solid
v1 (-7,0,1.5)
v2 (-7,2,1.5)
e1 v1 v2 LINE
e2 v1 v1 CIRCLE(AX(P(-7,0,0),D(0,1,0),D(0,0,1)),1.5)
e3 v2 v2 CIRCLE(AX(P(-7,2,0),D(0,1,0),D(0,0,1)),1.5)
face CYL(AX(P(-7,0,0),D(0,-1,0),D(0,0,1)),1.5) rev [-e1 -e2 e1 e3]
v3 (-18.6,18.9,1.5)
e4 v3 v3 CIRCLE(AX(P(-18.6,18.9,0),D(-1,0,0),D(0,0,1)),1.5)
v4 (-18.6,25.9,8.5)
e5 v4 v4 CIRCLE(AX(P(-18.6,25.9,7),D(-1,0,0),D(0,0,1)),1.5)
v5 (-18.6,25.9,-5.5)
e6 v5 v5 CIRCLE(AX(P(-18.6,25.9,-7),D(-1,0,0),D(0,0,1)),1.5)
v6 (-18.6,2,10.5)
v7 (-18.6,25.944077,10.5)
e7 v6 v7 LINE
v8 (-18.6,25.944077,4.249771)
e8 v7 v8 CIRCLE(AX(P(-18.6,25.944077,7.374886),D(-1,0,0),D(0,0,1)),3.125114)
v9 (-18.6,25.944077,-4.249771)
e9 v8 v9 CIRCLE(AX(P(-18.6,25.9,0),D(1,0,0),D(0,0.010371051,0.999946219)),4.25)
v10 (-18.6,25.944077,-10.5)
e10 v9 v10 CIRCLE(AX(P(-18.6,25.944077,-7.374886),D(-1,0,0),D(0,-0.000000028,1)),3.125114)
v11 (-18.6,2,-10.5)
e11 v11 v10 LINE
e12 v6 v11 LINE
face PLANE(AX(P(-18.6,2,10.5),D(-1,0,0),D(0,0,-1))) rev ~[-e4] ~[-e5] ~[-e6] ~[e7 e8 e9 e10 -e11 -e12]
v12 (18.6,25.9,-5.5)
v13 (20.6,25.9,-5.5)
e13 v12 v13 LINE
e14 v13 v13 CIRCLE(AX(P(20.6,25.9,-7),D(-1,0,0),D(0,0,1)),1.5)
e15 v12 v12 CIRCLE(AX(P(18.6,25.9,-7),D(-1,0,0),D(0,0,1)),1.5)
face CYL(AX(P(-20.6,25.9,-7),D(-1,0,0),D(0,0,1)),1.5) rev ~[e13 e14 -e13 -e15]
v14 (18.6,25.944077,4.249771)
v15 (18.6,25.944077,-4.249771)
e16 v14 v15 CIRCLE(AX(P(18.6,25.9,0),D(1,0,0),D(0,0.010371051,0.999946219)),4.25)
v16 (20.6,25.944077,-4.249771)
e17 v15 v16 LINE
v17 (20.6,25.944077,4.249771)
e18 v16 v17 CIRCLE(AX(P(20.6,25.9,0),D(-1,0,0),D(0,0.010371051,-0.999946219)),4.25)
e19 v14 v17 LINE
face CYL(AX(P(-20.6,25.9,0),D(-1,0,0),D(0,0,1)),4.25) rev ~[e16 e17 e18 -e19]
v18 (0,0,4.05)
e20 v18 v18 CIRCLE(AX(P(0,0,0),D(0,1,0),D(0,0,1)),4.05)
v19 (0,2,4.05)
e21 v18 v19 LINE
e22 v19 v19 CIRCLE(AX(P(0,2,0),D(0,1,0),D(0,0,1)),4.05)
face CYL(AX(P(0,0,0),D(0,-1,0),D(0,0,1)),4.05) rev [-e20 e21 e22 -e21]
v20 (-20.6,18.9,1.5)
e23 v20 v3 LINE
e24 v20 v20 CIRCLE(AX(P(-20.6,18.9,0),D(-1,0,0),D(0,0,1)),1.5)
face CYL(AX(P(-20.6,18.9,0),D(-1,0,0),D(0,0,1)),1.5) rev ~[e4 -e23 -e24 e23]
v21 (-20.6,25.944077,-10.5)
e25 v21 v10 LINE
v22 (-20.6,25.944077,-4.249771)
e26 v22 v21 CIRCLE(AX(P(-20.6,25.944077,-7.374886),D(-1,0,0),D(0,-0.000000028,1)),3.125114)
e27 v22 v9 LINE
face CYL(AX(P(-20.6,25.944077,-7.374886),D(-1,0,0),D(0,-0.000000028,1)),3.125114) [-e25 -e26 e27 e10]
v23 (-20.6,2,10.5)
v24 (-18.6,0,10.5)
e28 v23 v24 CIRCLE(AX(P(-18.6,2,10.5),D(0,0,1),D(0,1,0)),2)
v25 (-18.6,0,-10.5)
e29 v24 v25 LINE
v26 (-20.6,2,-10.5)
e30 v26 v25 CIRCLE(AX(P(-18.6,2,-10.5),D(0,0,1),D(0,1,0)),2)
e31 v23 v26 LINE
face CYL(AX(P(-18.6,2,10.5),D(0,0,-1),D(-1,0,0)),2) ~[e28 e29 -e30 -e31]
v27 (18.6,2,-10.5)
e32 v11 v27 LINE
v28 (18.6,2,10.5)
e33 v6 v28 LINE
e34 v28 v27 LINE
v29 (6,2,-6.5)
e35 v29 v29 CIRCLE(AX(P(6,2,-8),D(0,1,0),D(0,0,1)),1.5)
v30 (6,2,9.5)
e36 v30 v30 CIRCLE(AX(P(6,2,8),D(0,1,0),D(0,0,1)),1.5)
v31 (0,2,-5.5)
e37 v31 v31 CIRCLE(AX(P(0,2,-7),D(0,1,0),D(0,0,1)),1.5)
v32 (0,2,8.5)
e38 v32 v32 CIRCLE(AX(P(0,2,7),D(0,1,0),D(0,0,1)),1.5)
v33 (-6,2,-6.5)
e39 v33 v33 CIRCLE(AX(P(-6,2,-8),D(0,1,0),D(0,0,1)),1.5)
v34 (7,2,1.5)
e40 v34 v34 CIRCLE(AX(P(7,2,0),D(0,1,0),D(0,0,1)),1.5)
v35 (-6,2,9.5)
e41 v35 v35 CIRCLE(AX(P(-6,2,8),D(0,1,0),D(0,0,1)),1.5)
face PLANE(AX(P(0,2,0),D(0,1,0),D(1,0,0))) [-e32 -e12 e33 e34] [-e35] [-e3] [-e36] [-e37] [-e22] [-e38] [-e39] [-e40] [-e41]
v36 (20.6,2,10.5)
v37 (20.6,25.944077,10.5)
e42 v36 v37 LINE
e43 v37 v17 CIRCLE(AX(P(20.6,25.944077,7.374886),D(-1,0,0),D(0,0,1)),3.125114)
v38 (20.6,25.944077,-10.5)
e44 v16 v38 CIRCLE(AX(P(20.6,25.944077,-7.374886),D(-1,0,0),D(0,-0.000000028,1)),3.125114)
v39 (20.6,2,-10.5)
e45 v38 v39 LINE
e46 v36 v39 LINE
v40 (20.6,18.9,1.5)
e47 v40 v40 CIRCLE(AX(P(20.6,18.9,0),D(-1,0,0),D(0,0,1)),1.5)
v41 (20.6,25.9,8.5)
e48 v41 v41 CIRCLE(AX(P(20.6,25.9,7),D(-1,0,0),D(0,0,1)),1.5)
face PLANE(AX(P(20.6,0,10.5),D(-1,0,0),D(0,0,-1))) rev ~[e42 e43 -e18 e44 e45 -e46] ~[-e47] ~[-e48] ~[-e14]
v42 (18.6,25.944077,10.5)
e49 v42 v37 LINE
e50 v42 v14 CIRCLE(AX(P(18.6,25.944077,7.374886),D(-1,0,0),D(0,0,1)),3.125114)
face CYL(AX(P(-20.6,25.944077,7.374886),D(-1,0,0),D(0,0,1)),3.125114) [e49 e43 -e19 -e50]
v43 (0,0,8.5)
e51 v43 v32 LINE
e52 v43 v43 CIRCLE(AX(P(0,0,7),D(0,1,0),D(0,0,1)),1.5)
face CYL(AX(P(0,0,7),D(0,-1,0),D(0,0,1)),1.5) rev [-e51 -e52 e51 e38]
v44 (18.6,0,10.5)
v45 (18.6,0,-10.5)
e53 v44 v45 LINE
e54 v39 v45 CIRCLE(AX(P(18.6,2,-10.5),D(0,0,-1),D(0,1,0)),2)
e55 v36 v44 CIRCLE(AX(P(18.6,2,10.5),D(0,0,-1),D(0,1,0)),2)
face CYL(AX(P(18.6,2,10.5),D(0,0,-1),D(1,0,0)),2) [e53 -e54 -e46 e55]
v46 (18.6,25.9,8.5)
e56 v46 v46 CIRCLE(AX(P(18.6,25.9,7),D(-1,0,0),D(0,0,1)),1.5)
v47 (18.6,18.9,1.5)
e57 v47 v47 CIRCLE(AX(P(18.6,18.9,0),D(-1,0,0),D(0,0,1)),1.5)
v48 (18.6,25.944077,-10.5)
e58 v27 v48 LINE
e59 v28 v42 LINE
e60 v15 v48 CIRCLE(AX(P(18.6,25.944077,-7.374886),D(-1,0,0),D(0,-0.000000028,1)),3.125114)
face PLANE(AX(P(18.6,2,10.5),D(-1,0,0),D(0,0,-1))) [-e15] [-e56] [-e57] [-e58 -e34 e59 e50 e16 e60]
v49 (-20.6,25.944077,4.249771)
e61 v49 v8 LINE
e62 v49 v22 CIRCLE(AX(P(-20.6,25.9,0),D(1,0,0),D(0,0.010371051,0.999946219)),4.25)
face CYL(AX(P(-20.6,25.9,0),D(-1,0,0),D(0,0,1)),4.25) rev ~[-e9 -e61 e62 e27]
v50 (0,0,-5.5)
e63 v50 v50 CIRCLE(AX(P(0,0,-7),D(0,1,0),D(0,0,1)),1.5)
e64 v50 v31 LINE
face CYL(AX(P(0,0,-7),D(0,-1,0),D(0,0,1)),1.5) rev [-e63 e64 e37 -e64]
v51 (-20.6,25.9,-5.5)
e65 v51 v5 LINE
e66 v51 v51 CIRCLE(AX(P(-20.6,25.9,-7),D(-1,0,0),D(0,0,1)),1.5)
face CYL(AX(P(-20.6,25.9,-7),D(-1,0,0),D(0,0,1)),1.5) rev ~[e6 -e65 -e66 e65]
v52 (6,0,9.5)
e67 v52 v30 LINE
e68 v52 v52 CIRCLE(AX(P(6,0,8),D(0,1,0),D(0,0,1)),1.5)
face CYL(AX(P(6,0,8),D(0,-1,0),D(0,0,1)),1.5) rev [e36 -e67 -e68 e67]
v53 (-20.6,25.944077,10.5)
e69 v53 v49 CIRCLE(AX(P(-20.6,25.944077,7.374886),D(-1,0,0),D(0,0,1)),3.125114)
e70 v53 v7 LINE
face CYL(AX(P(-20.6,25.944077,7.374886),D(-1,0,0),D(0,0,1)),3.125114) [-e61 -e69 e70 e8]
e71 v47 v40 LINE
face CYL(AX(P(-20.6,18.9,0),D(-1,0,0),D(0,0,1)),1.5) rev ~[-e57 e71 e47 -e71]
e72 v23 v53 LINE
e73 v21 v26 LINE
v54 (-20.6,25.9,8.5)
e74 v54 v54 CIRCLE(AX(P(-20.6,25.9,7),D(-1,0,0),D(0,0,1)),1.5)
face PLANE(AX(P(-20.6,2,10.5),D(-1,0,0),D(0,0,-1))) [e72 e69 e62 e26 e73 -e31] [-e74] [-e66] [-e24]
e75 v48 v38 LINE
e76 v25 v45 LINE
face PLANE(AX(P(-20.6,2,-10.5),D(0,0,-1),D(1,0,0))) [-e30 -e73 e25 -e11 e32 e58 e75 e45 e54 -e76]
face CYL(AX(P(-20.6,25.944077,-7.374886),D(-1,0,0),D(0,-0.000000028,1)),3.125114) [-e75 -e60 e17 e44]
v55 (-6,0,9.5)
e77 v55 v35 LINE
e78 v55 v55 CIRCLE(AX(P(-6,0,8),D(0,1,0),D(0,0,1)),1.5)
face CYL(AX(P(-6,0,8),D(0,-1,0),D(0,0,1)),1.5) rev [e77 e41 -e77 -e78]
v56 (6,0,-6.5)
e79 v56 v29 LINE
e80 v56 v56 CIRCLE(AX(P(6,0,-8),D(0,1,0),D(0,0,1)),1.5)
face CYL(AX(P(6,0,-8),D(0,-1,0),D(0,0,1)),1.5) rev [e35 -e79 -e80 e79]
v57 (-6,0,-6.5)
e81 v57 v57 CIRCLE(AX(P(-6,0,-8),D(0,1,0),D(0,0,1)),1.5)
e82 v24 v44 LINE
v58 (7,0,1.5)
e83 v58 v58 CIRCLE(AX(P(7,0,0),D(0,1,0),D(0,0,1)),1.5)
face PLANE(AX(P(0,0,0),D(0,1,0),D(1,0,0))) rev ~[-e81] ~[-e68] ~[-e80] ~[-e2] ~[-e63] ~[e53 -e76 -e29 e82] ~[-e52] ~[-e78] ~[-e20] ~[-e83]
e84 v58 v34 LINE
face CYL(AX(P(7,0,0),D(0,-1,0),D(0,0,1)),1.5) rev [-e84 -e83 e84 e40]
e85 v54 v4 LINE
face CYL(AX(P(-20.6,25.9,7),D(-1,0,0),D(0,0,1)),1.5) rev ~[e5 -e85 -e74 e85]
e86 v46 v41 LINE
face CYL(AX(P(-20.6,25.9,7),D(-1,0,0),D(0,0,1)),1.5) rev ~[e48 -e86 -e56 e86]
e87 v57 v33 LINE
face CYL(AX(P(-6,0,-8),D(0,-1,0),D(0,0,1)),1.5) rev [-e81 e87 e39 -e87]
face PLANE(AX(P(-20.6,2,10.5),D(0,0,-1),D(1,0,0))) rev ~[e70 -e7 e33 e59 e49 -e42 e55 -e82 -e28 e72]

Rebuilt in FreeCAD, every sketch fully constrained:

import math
import FreeCAD as App
import Part
import Sketcher
from FreeCAD import Vector


def edges_at(feature, points):
    """Names of the edges that pass closest to the given points."""
    edges = feature.Shape.Edges
    near = lambda p: min(range(len(edges)), key=lambda i: edges[i].distToShape(Part.Vertex(*p))[0])
    return sorted({f"Edge{near(p) + 1}" for p in points})


def add_polygon(sketch, points):
    """Adds a closed chain of lines whose ends are joined by coincident constraints."""
    first, n = sketch.GeometryCount, len(points)
    for a, b in zip(points, points[1:] + points[:1]):
        sketch.addGeometry(Part.LineSegment(App.Vector(*a, 0), App.Vector(*b, 0)), False)
    for i in range(n):
        sketch.addConstraint(Sketcher.Constraint("Coincident", first + i, 2, first + (i + 1) % n, 1))

doc = App.newDocument("Part")
body = doc.addObject("PartDesign::Body", "Body")

sketch1 = body.newObject("Sketcher::SketchObject", "Sketch")
sketch1.AttachmentSupport = (doc.getObject("XZ_Plane"), [""])
sketch1.MapMode = "FlatFace"
add_polygon(sketch1, [(-20.6, -10.5), (-20.6, 10.5), (20.6, 10.5), (20.6, -10.5)])
sketch1.addGeometry(Part.Circle(Vector(-6, 8, 0), Vector(0, 0, 1), 1.5), False)
sketch1.addGeometry(Part.Circle(Vector(0, 7, 0), Vector(0, 0, 1), 1.5), False)
sketch1.addGeometry(Part.Circle(Vector(6, 8, 0), Vector(0, 0, 1), 1.5), False)
sketch1.addGeometry(Part.Circle(Vector(-7, 0, 0), Vector(0, 0, 1), 1.5), False)
sketch1.addGeometry(Part.Circle(Vector(-6, -8, 0), Vector(0, 0, 1), 1.5), False)
sketch1.addGeometry(Part.Circle(Vector(0, 0, 0), Vector(0, 0, 1), 4.05), False)
sketch1.addGeometry(Part.Circle(Vector(7, 0, 0), Vector(0, 0, 1), 1.5), False)
sketch1.addGeometry(Part.Circle(Vector(0, -7, 0), Vector(0, 0, 1), 1.5), False)
sketch1.addGeometry(Part.Circle(Vector(6, -8, 0), Vector(0, 0, 1), 1.5), False)
sketch1.addConstraint([
    Sketcher.Constraint("Vertical", 0),
    Sketcher.Constraint("Horizontal", 1),
    Sketcher.Constraint("Vertical", 2),
    Sketcher.Constraint("Horizontal", 3),
    Sketcher.Constraint("Coincident", 9, 3, -1, 1),
    Sketcher.Constraint("Equal", 4, 5),
    Sketcher.Constraint("Equal", 5, 6),
    Sketcher.Constraint("Equal", 6, 7),
    Sketcher.Constraint("Equal", 7, 8),
    Sketcher.Constraint("Equal", 8, 10),
    Sketcher.Constraint("Equal", 10, 11),
    Sketcher.Constraint("Equal", 11, 12),
    Sketcher.Constraint("Symmetric", 6, 3, 8, 3, -1, 1),
    Sketcher.Constraint("Symmetric", 7, 3, 10, 3, -1, 1),
    Sketcher.Constraint("Symmetric", 5, 3, 11, 3, -1, 1),
    Sketcher.Constraint("Symmetric", 4, 3, 12, 3, -1, 1),
    Sketcher.Constraint("Symmetric", 0, 2, 2, 2, -1, 1),
    Sketcher.Constraint("Symmetric", 4, 3, 6, 3, -2),
    Sketcher.Constraint("PointOnObject", 5, 3, -2),
    Sketcher.Constraint("PointOnObject", 7, 3, -1),
    Sketcher.Constraint("Diameter", 4, 3.0),
    Sketcher.Constraint("Diameter", 9, 8.1),
    Sketcher.Constraint("DistanceY", 0, 1, 0, 2, 21.0),
    Sketcher.Constraint("DistanceX", 1, 1, 1, 2, 41.2),
    Sketcher.Constraint("DistanceX", 4, 3, -1, 1, 6.0),
    Sketcher.Constraint("DistanceY", -1, 1, 4, 3, 8.0),
    Sketcher.Constraint("DistanceY", -1, 1, 5, 3, 7.0),
    Sketcher.Constraint("DistanceX", 7, 3, -1, 1, 7.0),
])
pad1 = body.newObject("PartDesign::Pad", "Pad")
pad1.Profile = sketch1
pad1.Length = 2
pad1.Reversed = True

sketch2 = body.newObject("Sketcher::SketchObject", "Sketch001")
sketch2.AttachmentSupport = (doc.getObject("XZ_Plane"), [""])
sketch2.MapMode = "FlatFace"
sketch2.AttachmentOffset = App.Placement(Vector(0, 0, -2), App.Rotation())
add_polygon(sketch2, [(-20.6, -10.5), (-20.6, 10.5), (-18.6, 10.5), (-18.6, -10.5)])
add_polygon(sketch2, [(18.6, -10.5), (18.6, 10.5), (20.6, 10.5), (20.6, -10.5)])
sketch2.addConstraint([
    Sketcher.Constraint("Vertical", 0),
    Sketcher.Constraint("Horizontal", 1),
    Sketcher.Constraint("Vertical", 2),
    Sketcher.Constraint("Horizontal", 3),
    Sketcher.Constraint("Vertical", 4),
    Sketcher.Constraint("Horizontal", 5),
    Sketcher.Constraint("Vertical", 6),
    Sketcher.Constraint("Horizontal", 7),
    Sketcher.Constraint("Symmetric", 2, 2, 4, 2, -1, 1),
    Sketcher.Constraint("Symmetric", 0, 2, 6, 2, -1, 1),
    Sketcher.Constraint("Horizontal", 1, 2, 4, 2),
    Sketcher.Constraint("DistanceX", 1, 1, 1, 2, 2.0),
    Sketcher.Constraint("DistanceY", 0, 1, 0, 2, 21.0),
    Sketcher.Constraint("DistanceX", 0, 2, -1, 1, 20.6),
])
pad2 = body.newObject("PartDesign::Pad", "Pad001")
pad2.Profile = sketch2
pad2.Length = 28.2
pad2.Reversed = True

sketch3 = body.newObject("Sketcher::SketchObject", "Sketch002")
sketch3.AttachmentSupport = (doc.getObject("YZ_Plane"), [""])
sketch3.MapMode = "FlatFace"
sketch3.AttachmentOffset = App.Placement(Vector(0, 0, -20.6), App.Rotation())
sketch3.addGeometry([
    Part.Circle(Vector(25.9, -7, 0), Vector(0, 0, 1), 1.5),
    Part.Circle(Vector(18.9, 0, 0), Vector(0, 0, 1), 1.5),
    Part.Circle(Vector(25.9, 7, 0), Vector(0, 0, 1), 1.5),
    Part.Circle(Vector(25.9, 0, 0), Vector(0, 0, 1), 4.25),
], False)
sketch3.addConstraint([
    Sketcher.Constraint("Equal", 0, 1),
    Sketcher.Constraint("Equal", 1, 2),
    Sketcher.Constraint("Symmetric", 0, 3, 2, 3, -1),
    Sketcher.Constraint("PointOnObject", 1, 3, -1),
    Sketcher.Constraint("PointOnObject", 3, 3, -1),
    Sketcher.Constraint("Vertical", 2, 3, 3, 3),
    Sketcher.Constraint("Diameter", 0, 3.0),
    Sketcher.Constraint("Diameter", 3, 8.5),
    Sketcher.Constraint("DistanceY", 0, 3, -1, 1, 7.0),
    Sketcher.Constraint("DistanceX", 1, 3, 0, 3, 7.0),
    Sketcher.Constraint("DistanceX", -1, 1, 0, 3, 25.9),
])
pocket1 = body.newObject("PartDesign::Pocket", "Pocket")
pocket1.Profile = sketch3
pocket1.Type = "ThroughAll"
pocket1.Reversed = True

sketch4 = body.newObject("Sketcher::SketchObject", "Sketch003")
sketch4.AttachmentSupport = (doc.getObject("YZ_Plane"), [""])
sketch4.MapMode = "FlatFace"
sketch4.AttachmentOffset = App.Placement(Vector(0, 0, -20.6), App.Rotation())
sketch4.addGeometry([
    Part.LineSegment(Vector(30.2, -10.5, 0), Vector(25.944077, -10.5, 0)),
    Part.ArcOfCircle(Part.Circle(Vector(25.944077, -7.374886, 0), Vector(0, 0, 1), 3.125114), math.radians(-90), math.radians(90.000002)),
    Part.ArcOfCircle(Part.Circle(Vector(25.944077, 0, 0), Vector(0, 0, 1), 4.249771), math.radians(89.999998), math.radians(270.000002)),
    Part.ArcOfCircle(Part.Circle(Vector(25.944077, 7.374886, 0), Vector(0, 0, 1), 3.125114), math.radians(-90), math.radians(90)),
    Part.LineSegment(Vector(25.944077, 10.5, 0), Vector(30.2, 10.5, 0)),
    Part.LineSegment(Vector(30.2, 10.5, 0), Vector(30.2, -10.5, 0)),
], False)
sketch4.addConstraint([
    Sketcher.Constraint("Tangent", 0, 2, 1, 1),
    Sketcher.Constraint("Tangent", 1, 2, 2, 2),
    Sketcher.Constraint("Tangent", 2, 1, 3, 1),
    Sketcher.Constraint("Tangent", 3, 2, 4, 1),
    Sketcher.Constraint("Coincident", 4, 2, 5, 1),
    Sketcher.Constraint("Coincident", 5, 2, 0, 1),
    Sketcher.Constraint("Horizontal", 0),
    Sketcher.Constraint("Horizontal", 4),
    Sketcher.Constraint("Vertical", 5),
    Sketcher.Constraint("Equal", 1, 3),
    Sketcher.Constraint("Symmetric", 1, 3, 3, 3, -1),
    Sketcher.Constraint("Vertical", 1, 3, 2, 3),
    Sketcher.Constraint("DistanceY", 5, 2, 5, 1, 21.0),
    Sketcher.Constraint("DistanceX", -1, 1, 4, 2, 30.2),
    Sketcher.Constraint("Radius", 2, 4.249771),
    Sketcher.Constraint("DistanceX", 0, 2, 0, 1, 4.255923),
])
pocket2 = body.newObject("PartDesign::Pocket", "Pocket001")
pocket2.Profile = sketch4
pocket2.Type = "ThroughAll"
pocket2.Reversed = True
doc.recompute()

fillet = body.newObject("PartDesign::Fillet", "Fillet")
fillet.Base = (pocket2, edges_at(pocket2, [(20.6, 0, 0), (-20.6, 0, 0)]))
fillet.Radius = 2

doc.recompute()
